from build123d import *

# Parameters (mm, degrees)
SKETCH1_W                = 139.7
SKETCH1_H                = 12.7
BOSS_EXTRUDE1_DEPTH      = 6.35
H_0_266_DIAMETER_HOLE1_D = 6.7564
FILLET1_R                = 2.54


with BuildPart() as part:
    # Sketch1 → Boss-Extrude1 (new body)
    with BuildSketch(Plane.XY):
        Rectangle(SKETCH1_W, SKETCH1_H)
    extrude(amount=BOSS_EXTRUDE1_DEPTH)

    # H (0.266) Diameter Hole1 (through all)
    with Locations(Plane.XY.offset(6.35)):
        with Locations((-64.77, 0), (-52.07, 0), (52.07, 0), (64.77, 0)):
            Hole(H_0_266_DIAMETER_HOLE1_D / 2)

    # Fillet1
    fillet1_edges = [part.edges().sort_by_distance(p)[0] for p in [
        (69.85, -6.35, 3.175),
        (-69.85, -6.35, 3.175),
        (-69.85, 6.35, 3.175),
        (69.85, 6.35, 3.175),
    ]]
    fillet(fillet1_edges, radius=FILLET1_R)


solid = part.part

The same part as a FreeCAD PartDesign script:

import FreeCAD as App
import Part
import Sketcher
Q = App.Units.Quantity


def edges_at(feature, points):
    """Names of the edges that pass closest to the given points."""
    edges = feature.Shape.Edges
    near = lambda p: min(range(len(edges)), key=lambda i: edges[i].distToShape(Part.Vertex(*p))[0])
    return sorted({f"Edge{near(p) + 1}" for p in points})

doc = App.newDocument("Part")
body = doc.addObject("PartDesign::Body", "Body")

# Sketch on XY plane
sketch1 = body.newObject("Sketcher::SketchObject", "Sketch")
sketch1.AttachmentSupport = (doc.getObject("XY_Plane"), [""])
sketch1.MapMode = "FlatFace"
sketch1.addGeometry([
    Part.LineSegment(App.Vector(-70, 6, 0), App.Vector(-70, -6, 0)),
    Part.LineSegment(App.Vector(-70, -6, 0), App.Vector(70, -6, 0)),
    Part.LineSegment(App.Vector(70, -6, 0), App.Vector(70, 6, 0)),
    Part.LineSegment(App.Vector(70, 6, 0), App.Vector(-70, 6, 0)),
], False)
sketch1.addConstraint([
    Sketcher.Constraint("Coincident", 0, 2, 1, 1),
    Sketcher.Constraint("Coincident", 1, 2, 2, 1),
    Sketcher.Constraint("Coincident", 2, 2, 3, 1),
    Sketcher.Constraint("Coincident", 3, 2, 0, 1),
    Sketcher.Constraint("Vertical", 0),
    Sketcher.Constraint("Horizontal", 1),
    Sketcher.Constraint("Vertical", 2),
    Sketcher.Constraint("Horizontal", 3),
    Sketcher.Constraint("Symmetric", 0, 2, 2, 2, -1, 1),
    Sketcher.Constraint("DistanceX", 1, 1, 1, 2, Q("5.5 in")),
    Sketcher.Constraint("DistanceY", 0, 2, 0, 1, Q("0.5 in")),
])
pad1 = body.newObject("PartDesign::Pad", "Pad")
pad1.Profile = sketch1
pad1.Length = Q("0.25 in")

# Sketch on XY plane
sketch2 = body.newObject("Sketcher::SketchObject", "Sketch001")
sketch2.AttachmentSupport = (doc.getObject("XY_Plane"), [""])
sketch2.MapMode = "FlatFace"
sketch2.AttachmentOffset = App.Placement(App.Vector(0, 0, 0.25 * 25.4), App.Rotation())
sketch2.addGeometry([
    Part.Circle(App.Vector(-64.8, 0, 0), App.Vector(0, 0, 1), 3.4),
    Part.Circle(App.Vector(-52.1, 0, 0), App.Vector(0, 0, 1), 3.4),
    Part.Circle(App.Vector(52.1, 0, 0), App.Vector(0, 0, 1), 3.4),
    Part.Circle(App.Vector(64.8, 0, 0), App.Vector(0, 0, 1), 3.4),
], False)
sketch2.addConstraint([
    Sketcher.Constraint("Equal", 0, 1),
    Sketcher.Constraint("Equal", 1, 2),
    Sketcher.Constraint("Equal", 2, 3),
    Sketcher.Constraint("Symmetric", 1, 3, 2, 3, -1, 1),
    Sketcher.Constraint("Symmetric", 0, 3, 3, 3, -1, 1),
    Sketcher.Constraint("PointOnObject", 0, 3, -1),
    Sketcher.Constraint("PointOnObject", 1, 3, -1),
    Sketcher.Constraint("Diameter", 0, Q("0.266 in")),
    Sketcher.Constraint("DistanceX", 0, 3, 1, 3, Q("0.5 in")),
    Sketcher.Constraint("DistanceX", 1, 3, 2, 3, Q("4.1 in")),
])
doc.recompute()
hole = body.newObject("PartDesign::Hole", "Hole")
hole.Profile = sketch2
hole.ThreadType = "None"
hole.Diameter = Q("0.266 in")
hole.DepthType = "ThroughAll"
doc.recompute()

fillet = body.newObject("PartDesign::Fillet", "Fillet")
fillet.Base = (hole, edges_at(hole, [
    (69.85, -6.35, 3.175),
    (-69.85, -6.35, 3.175),
    (-69.85, 6.35, 3.175),
    (69.85, 6.35, 3.175),
]))
fillet.Radius = Q("0.1 in")

doc.recompute()
